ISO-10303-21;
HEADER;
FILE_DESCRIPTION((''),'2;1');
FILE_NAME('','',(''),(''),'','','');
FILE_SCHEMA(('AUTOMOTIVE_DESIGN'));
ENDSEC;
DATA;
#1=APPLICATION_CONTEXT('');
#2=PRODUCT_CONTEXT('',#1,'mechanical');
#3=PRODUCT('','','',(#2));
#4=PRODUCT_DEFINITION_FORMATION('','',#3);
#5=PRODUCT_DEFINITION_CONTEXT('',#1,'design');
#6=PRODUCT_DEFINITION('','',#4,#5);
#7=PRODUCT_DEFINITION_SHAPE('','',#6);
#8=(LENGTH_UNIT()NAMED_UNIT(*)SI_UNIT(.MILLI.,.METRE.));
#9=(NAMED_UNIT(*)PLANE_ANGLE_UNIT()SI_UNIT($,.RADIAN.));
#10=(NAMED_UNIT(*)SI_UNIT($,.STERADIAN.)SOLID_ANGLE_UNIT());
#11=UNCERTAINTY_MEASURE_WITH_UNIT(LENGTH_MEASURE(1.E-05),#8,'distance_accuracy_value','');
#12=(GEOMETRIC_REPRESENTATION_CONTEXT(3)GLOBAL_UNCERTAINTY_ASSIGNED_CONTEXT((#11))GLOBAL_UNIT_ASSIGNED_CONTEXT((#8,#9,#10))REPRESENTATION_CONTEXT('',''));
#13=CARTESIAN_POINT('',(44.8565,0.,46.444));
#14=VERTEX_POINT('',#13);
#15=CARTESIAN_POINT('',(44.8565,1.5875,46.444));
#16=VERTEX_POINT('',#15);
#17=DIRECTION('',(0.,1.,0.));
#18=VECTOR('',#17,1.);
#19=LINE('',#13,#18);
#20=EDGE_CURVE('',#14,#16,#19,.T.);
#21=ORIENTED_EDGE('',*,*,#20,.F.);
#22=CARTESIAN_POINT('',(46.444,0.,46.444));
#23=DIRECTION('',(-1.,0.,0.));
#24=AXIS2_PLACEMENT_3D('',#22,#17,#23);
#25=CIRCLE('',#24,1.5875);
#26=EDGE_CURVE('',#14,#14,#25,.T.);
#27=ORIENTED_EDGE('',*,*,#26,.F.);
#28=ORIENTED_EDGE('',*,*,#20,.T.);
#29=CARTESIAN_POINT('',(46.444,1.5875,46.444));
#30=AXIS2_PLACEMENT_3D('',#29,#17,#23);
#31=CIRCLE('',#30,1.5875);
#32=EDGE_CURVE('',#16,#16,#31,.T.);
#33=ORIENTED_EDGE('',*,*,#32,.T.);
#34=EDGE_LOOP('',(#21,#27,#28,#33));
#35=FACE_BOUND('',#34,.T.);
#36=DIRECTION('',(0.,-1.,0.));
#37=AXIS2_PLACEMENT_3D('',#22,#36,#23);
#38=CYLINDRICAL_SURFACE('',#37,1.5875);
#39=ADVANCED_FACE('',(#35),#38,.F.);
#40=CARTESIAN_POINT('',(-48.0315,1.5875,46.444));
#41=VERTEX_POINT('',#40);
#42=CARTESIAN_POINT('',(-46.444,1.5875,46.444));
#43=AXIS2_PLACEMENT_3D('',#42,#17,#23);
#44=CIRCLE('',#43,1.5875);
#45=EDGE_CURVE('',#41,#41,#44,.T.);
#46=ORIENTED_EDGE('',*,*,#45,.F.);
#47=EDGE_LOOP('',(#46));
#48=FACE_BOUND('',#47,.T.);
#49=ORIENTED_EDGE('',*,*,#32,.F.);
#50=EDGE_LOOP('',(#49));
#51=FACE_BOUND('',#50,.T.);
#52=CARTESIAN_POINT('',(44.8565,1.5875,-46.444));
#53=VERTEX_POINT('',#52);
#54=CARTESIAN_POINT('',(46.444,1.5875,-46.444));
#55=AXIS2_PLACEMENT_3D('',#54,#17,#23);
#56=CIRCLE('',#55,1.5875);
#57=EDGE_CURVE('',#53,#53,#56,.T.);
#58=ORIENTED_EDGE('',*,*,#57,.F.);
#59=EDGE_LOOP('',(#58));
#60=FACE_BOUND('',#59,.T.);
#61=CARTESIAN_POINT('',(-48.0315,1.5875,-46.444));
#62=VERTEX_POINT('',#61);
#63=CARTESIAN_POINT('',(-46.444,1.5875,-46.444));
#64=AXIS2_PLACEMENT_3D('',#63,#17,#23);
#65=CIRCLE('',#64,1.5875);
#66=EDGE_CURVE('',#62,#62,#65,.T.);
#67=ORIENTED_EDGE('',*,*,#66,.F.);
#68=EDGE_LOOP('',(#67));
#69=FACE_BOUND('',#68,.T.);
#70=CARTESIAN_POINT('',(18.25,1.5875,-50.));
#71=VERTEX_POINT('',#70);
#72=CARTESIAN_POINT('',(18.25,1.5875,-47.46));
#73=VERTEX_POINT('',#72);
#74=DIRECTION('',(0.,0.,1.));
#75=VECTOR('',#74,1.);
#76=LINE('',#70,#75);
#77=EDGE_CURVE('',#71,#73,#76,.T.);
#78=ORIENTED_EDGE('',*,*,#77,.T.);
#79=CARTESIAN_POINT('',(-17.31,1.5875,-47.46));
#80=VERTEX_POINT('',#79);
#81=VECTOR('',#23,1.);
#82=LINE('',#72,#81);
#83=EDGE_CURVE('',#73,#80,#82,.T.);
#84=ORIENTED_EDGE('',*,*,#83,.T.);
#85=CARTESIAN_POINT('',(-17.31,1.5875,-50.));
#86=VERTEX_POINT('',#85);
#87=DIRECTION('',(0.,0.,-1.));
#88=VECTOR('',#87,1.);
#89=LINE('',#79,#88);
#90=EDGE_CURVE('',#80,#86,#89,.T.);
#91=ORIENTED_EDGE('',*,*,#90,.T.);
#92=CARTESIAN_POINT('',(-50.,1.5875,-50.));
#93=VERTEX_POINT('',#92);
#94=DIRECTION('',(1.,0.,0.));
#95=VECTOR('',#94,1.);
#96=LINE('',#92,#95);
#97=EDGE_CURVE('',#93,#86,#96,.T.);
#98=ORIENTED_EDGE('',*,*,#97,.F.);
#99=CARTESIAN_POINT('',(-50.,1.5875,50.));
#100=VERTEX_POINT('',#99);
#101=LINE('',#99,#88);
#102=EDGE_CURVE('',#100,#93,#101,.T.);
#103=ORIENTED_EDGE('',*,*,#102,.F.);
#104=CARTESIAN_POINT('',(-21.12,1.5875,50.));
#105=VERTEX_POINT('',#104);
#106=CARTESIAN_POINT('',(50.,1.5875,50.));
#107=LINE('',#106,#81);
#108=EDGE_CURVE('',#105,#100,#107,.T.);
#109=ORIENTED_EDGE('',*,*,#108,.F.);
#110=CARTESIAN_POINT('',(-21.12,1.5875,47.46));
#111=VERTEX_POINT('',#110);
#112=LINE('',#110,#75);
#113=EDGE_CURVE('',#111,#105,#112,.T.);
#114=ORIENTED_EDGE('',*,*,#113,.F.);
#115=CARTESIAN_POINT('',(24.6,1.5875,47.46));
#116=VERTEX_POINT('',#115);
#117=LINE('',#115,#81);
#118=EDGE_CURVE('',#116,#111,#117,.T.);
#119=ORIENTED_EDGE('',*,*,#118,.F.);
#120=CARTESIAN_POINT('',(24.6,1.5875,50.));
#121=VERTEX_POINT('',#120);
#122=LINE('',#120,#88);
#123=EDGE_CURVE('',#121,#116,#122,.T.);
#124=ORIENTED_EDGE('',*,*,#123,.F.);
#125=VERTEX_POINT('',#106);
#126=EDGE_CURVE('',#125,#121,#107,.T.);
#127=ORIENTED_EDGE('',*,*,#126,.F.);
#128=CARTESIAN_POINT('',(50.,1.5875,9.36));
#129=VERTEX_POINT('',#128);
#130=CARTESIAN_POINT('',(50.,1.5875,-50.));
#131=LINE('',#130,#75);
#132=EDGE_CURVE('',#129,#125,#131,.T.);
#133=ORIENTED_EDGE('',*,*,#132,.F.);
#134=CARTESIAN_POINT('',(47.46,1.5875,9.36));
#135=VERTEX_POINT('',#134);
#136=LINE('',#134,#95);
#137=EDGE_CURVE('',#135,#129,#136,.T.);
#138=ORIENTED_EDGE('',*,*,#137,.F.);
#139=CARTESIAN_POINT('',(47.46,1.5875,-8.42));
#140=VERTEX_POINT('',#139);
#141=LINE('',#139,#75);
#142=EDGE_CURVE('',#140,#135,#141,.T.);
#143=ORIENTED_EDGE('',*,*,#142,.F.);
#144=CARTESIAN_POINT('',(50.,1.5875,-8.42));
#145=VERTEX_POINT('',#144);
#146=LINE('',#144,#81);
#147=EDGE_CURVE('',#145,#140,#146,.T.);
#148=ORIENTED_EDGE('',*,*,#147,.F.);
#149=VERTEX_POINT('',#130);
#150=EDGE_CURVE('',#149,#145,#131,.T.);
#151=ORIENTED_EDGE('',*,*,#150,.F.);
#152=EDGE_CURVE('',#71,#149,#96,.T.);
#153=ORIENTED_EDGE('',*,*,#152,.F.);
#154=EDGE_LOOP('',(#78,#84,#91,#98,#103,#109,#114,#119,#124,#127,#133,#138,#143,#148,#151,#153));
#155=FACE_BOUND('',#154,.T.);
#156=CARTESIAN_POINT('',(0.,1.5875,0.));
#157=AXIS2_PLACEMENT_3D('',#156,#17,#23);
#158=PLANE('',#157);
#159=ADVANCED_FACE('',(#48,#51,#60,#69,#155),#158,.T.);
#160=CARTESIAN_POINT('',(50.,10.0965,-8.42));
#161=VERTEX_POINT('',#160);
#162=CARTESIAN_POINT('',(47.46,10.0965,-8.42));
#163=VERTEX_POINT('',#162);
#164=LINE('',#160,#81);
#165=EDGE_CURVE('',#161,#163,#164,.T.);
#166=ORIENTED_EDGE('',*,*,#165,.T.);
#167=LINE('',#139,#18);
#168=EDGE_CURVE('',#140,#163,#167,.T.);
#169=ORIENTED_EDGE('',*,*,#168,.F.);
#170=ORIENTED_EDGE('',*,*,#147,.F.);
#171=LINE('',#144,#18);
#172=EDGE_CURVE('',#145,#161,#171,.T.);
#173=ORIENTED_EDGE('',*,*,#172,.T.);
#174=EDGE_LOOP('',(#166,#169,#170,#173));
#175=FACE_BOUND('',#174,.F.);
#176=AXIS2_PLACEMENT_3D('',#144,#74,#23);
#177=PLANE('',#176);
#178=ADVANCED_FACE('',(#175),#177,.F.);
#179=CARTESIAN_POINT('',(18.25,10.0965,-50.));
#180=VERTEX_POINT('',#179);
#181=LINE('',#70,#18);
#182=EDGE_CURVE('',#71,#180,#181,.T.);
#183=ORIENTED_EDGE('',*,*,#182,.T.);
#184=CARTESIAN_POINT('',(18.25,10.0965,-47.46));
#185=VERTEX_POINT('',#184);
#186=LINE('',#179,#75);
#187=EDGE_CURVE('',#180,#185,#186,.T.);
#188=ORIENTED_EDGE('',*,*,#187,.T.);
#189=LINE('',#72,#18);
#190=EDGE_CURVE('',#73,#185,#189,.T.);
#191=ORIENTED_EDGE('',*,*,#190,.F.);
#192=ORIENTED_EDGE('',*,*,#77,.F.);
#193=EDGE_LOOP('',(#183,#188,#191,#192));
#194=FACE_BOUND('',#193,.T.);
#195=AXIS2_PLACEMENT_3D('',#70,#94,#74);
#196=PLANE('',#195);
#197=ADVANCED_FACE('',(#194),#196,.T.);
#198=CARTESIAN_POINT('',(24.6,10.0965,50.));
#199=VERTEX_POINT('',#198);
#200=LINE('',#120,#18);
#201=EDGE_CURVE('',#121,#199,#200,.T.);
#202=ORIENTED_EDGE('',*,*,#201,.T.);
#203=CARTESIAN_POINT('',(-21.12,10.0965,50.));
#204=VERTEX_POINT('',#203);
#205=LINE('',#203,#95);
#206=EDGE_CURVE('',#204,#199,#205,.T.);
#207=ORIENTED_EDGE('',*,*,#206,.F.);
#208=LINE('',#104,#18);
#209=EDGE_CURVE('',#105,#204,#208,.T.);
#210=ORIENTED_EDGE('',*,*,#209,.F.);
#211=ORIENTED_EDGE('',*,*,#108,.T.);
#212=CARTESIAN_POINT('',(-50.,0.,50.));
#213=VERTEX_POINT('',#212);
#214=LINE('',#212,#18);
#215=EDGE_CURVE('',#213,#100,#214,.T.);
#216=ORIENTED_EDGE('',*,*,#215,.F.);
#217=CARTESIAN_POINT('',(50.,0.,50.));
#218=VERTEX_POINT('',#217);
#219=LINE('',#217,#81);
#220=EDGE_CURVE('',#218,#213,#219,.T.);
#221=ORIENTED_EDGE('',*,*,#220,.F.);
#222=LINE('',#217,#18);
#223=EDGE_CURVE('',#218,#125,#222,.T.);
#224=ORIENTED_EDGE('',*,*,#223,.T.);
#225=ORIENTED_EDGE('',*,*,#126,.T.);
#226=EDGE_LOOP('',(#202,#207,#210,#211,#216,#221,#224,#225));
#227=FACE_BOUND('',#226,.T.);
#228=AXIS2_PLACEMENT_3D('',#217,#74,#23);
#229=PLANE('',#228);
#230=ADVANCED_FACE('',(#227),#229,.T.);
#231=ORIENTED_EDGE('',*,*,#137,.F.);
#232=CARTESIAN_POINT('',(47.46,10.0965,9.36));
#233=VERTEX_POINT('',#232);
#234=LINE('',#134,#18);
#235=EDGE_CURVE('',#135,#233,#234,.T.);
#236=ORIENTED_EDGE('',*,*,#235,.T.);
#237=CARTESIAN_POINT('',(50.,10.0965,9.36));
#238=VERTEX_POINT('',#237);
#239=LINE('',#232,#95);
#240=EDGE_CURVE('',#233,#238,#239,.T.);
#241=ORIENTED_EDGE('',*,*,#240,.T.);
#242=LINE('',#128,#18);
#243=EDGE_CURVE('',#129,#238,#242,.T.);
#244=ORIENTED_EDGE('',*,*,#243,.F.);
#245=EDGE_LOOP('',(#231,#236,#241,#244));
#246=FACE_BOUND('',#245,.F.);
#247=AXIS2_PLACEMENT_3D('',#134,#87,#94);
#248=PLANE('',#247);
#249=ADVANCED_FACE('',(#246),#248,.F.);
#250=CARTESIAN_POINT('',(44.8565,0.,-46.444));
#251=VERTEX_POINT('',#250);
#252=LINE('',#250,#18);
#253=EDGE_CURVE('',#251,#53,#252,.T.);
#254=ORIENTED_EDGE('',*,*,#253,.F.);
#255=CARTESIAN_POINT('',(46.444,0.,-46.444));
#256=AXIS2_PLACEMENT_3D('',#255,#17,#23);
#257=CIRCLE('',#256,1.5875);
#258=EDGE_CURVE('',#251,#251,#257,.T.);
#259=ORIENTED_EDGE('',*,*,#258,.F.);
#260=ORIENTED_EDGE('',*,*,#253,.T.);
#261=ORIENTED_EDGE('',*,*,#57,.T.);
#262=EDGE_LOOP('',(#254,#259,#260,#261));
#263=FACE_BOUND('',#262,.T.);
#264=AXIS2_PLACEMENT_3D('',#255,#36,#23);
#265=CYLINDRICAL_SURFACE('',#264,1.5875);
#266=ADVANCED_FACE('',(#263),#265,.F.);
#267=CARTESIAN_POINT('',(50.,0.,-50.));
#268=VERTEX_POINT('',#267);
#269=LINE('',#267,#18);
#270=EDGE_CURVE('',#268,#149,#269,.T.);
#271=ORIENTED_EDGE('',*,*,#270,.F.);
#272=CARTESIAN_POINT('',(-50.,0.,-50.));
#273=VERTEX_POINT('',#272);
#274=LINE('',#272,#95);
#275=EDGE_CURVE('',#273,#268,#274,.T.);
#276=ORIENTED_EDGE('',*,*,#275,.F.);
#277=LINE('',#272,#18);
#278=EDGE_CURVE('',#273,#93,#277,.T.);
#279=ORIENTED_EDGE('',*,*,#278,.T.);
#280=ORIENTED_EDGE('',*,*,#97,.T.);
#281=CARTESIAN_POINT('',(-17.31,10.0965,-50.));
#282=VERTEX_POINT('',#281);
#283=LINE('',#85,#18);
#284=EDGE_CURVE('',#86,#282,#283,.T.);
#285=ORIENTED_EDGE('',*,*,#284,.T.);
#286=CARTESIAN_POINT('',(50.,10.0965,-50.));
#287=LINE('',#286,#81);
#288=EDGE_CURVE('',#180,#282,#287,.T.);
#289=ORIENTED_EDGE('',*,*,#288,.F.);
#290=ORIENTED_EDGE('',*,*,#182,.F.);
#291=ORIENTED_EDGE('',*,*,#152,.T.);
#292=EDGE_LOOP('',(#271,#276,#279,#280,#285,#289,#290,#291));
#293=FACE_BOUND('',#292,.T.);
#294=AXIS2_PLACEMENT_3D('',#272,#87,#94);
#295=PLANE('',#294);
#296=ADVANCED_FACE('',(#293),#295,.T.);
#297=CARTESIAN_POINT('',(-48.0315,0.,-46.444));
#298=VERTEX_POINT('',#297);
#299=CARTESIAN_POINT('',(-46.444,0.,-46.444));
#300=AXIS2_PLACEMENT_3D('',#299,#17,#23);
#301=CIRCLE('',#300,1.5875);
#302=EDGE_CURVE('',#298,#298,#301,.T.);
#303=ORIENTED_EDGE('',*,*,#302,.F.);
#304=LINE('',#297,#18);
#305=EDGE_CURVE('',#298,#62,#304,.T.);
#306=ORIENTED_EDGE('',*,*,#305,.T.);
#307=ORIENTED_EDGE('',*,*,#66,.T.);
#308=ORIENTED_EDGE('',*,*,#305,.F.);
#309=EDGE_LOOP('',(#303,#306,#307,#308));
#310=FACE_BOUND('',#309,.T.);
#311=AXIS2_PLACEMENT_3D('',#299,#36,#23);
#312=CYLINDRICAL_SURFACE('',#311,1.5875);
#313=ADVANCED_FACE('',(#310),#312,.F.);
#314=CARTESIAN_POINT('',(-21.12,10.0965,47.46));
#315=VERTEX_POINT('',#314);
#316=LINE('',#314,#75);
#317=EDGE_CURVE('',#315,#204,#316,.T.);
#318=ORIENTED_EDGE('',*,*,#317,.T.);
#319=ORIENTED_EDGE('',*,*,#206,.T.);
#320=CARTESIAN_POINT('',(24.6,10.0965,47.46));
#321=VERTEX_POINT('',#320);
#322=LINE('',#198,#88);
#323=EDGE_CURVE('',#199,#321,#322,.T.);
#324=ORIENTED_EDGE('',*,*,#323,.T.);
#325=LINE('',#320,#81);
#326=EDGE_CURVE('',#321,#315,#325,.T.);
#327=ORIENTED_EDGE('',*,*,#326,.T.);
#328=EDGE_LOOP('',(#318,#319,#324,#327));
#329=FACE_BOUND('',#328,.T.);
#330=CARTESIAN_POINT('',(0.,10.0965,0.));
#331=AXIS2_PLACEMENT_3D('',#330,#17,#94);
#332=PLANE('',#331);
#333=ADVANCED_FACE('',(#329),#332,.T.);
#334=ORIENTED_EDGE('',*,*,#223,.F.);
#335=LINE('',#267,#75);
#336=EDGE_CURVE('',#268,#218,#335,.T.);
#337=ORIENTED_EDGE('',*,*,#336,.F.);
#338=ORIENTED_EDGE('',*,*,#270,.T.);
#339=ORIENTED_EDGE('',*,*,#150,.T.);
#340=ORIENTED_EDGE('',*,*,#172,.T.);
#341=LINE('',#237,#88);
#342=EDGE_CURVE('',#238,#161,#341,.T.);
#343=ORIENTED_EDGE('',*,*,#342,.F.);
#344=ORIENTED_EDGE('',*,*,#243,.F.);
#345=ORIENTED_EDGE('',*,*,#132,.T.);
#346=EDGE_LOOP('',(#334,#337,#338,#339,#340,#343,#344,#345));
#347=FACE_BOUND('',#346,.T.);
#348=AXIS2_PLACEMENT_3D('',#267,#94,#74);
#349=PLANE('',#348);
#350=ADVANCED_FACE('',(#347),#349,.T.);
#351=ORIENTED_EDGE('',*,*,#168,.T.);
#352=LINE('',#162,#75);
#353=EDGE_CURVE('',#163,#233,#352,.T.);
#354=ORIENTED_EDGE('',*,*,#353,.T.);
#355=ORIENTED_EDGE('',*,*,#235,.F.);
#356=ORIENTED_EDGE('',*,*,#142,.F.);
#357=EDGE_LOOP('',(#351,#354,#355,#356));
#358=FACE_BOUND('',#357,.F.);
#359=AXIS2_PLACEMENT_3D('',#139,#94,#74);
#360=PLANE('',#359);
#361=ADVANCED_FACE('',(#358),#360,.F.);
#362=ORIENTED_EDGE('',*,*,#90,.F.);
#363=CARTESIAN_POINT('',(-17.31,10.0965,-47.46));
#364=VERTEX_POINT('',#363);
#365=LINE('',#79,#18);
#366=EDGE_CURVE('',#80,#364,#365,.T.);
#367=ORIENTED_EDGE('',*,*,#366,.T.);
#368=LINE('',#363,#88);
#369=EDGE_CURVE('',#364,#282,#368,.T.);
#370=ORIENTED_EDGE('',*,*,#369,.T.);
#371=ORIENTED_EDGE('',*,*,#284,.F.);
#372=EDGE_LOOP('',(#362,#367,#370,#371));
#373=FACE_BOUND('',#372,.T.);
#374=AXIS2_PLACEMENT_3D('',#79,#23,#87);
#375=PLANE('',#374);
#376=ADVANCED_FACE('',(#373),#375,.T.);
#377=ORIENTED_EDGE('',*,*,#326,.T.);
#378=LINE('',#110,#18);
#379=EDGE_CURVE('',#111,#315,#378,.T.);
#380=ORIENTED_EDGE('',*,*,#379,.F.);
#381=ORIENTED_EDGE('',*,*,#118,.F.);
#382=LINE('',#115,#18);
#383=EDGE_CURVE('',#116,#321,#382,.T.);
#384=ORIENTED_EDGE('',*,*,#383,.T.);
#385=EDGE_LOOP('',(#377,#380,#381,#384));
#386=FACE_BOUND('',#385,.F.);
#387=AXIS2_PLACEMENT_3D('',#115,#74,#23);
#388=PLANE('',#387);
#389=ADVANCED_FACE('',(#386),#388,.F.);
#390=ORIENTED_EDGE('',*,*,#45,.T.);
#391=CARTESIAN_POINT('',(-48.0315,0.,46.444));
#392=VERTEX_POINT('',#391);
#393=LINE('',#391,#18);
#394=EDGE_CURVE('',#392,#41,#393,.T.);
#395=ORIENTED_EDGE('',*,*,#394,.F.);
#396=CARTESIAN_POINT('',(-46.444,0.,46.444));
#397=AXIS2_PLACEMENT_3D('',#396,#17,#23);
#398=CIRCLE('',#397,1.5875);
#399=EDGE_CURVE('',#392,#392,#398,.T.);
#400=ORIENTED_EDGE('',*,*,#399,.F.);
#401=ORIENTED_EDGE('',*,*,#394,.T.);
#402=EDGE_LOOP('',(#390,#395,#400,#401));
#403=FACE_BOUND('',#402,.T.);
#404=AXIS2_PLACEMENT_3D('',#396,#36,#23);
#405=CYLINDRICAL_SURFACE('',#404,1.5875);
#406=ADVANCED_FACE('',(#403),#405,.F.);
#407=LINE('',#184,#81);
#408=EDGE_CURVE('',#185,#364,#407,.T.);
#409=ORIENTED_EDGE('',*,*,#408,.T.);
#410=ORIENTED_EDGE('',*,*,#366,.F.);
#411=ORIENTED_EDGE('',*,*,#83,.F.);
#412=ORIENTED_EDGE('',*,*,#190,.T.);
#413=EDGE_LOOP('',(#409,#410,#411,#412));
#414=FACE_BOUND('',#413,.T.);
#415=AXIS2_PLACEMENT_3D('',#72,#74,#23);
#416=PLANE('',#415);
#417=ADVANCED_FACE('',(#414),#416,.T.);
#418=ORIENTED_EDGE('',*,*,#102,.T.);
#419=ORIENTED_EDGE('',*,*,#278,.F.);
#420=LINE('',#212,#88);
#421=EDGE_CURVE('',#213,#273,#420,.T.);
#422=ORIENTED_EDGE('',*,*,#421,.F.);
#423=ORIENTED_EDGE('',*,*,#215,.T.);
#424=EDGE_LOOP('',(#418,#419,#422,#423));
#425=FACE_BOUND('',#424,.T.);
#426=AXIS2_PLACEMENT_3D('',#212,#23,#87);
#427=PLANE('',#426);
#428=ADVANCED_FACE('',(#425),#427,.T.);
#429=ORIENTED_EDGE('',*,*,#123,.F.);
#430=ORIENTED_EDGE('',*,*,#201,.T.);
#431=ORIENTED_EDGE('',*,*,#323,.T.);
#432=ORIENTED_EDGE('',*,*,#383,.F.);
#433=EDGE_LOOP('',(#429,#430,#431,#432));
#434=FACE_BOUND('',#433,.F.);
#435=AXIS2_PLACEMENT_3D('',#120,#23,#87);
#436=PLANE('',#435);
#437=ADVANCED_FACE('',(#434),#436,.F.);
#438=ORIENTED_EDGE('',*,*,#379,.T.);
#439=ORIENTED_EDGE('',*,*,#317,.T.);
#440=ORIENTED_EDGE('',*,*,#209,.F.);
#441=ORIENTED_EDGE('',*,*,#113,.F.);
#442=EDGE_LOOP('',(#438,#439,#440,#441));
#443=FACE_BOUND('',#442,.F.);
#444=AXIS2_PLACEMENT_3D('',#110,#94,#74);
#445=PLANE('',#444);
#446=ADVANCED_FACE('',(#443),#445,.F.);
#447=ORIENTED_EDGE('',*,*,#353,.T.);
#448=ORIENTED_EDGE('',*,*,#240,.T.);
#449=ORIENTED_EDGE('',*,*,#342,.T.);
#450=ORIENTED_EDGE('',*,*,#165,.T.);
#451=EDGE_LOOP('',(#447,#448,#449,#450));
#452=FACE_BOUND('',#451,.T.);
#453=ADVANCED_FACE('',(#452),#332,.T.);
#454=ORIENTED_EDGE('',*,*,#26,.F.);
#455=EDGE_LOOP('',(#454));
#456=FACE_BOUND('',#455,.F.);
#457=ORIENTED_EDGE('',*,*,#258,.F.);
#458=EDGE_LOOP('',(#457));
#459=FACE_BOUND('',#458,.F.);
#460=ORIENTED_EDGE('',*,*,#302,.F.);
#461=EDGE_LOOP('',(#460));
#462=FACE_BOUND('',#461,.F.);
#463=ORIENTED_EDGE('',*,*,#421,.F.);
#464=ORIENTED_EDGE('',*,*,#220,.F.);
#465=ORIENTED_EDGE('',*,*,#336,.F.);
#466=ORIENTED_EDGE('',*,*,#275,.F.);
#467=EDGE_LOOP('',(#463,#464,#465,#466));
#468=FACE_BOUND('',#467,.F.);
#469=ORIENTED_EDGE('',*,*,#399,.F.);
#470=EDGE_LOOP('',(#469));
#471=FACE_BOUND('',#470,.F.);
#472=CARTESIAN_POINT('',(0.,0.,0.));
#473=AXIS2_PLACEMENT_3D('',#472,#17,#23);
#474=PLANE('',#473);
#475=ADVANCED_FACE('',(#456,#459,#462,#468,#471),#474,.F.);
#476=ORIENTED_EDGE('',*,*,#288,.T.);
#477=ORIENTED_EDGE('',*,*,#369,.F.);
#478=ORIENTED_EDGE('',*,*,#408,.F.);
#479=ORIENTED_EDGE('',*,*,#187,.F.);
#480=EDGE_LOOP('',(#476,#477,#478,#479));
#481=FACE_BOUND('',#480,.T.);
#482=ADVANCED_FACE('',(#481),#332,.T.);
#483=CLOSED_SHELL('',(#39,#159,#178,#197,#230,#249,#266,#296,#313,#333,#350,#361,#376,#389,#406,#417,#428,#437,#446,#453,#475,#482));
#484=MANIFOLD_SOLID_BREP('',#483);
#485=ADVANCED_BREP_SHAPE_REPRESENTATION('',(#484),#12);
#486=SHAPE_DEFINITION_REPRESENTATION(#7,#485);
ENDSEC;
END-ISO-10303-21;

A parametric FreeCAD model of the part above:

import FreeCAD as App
import Part
import Sketcher

V = App.Vector
Q = App.Units.Quantity


def add_polygon(sketch, points):
    """Adds a closed chain of lines whose ends are joined by coincident constraints."""
    first, n = sketch.GeometryCount, len(points)
    for a, b in zip(points, points[1:] + points[:1]):
        sketch.addGeometry(Part.LineSegment(App.Vector(*a, 0), App.Vector(*b, 0)), False)
    for i in range(n):
        sketch.addConstraint(Sketcher.Constraint("Coincident", first + i, 2, first + (i + 1) % n, 1))

doc = App.newDocument("Part")
body = doc.addObject("PartDesign::Body", "Body")

sketch1 = body.newObject("Sketcher::SketchObject", "Sketch")
sketch1.AttachmentSupport = (doc.getObject("XZ_Plane"), [""])
sketch1.MapMode = "FlatFace"
add_polygon(sketch1, [(-50, 50), (50, 50), (50, -50), (-50, -50)])
sketch1.addGeometry(Part.Circle(V(46.444, -46.444, 0), V(0, 0, 1), 1.5875), False)
sketch1.addGeometry(Part.Circle(V(-46.444, -46.444, 0), V(0, 0, 1), 1.5875), False)
sketch1.addGeometry(Part.Circle(V(46.444, 46.444, 0), V(0, 0, 1), 1.5875), False)
sketch1.addGeometry(Part.Circle(V(-46.444, 46.444, 0), V(0, 0, 1), 1.5875), False)
sketch1.addConstraint([
    Sketcher.Constraint("Horizontal", 0),
    Sketcher.Constraint("Vertical", 1),
    Sketcher.Constraint("Horizontal", 2),
    Sketcher.Constraint("Vertical", 3),
    Sketcher.Constraint("Equal", 4, 5),
    Sketcher.Constraint("Equal", 5, 6),
    Sketcher.Constraint("Equal", 6, 7),
    Sketcher.Constraint("Symmetric", 5, 3, 6, 3, -1, 1),
    Sketcher.Constraint("Symmetric", 4, 3, 7, 3, -1, 1),
    Sketcher.Constraint("Symmetric", 0, 2, 2, 2, -1, 1),
    Sketcher.Constraint("Symmetric", 4, 3, 5, 3, -2),
    Sketcher.Constraint("Equal", 2, 1),
    Sketcher.Constraint("Diameter", 4, Q("0.125 in")),
    Sketcher.Constraint("DistanceX", 0, 1, 0, 2, Q("3.937 in")),
    Sketcher.Constraint("DistanceX", 6, 3, 0, 2, Q("0.14 in")),
    Sketcher.Constraint("DistanceY", 6, 3, 0, 2, Q("0.14 in")),
])
pad1 = body.newObject("PartDesign::Pad", "Pad")
pad1.Profile = sketch1
pad1.Length = Q("0.0625 in")
pad1.Reversed = True

sketch2 = body.newObject("Sketcher::SketchObject", "Sketch001")
sketch2.AttachmentSupport = (doc.getObject("XZ_Plane"), [""])
sketch2.MapMode = "FlatFace"
sketch2.AttachmentOffset = App.Placement(V(0, 0, -0.0625 * 25.4), App.Rotation())
add_polygon(sketch2, [(-21.12, 47.46), (-21.12, 50), (24.6, 50), (24.6, 47.46)])
add_polygon(sketch2, [(18.25, -47.46), (18.25, -50), (-17.31, -50), (-17.31, -47.46)])
add_polygon(sketch2, [(47.46, 9.36), (50, 9.36), (50, -8.42), (47.46, -8.42)])
sketch2.addConstraint([
    Sketcher.Constraint("Vertical", 0),
    Sketcher.Constraint("Horizontal", 1),
    Sketcher.Constraint("Vertical", 2),
    Sketcher.Constraint("Horizontal", 3),
    Sketcher.Constraint("Vertical", 4),
    Sketcher.Constraint("Horizontal", 5),
    Sketcher.Constraint("Vertical", 6),
    Sketcher.Constraint("Horizontal", 7),
    Sketcher.Constraint("Horizontal", 8),
    Sketcher.Constraint("Vertical", 9),
    Sketcher.Constraint("Horizontal", 10),
    Sketcher.Constraint("Vertical", 11),
    Sketcher.Constraint("Equal", 10, 0),
    Sketcher.Constraint("Equal", 2, 4),
    Sketcher.Constraint("DistanceX", 1, 1, 1, 2, Q("1.8 in")),
    Sketcher.Constraint("DistanceX", 5, 2, 5, 1, Q("1.4 in")),
    Sketcher.Constraint("DistanceX", 8, 1, 8, 2, Q("0.1 in")),
    Sketcher.Constraint("DistanceY", 9, 2, 9, 1, Q("0.7 in")),
    Sketcher.Constraint("DistanceX", 2, 2, 8, 2, Q("1 in")),
    Sketcher.Constraint("DistanceY", 8, 2, 1, 2, Q("1.6 in")),
    Sketcher.Constraint("DistanceX", 7, 2, 8, 2, Q("1.25 in")),
    Sketcher.Constraint("DistanceY", 4, 2, 2, 2, Q("3.837 in")),
    Sketcher.Constraint("DistanceX", 0, 2, -1, 1, Q("0.8315 in")),
    Sketcher.Constraint("DistanceY", -1, 1, 0, 2, Q("1.9685 in")),
])
pad2 = body.newObject("PartDesign::Pad", "Pad001")
pad2.Profile = sketch2
pad2.Length = Q("0.335 in")
pad2.Reversed = True

doc.recompute()
